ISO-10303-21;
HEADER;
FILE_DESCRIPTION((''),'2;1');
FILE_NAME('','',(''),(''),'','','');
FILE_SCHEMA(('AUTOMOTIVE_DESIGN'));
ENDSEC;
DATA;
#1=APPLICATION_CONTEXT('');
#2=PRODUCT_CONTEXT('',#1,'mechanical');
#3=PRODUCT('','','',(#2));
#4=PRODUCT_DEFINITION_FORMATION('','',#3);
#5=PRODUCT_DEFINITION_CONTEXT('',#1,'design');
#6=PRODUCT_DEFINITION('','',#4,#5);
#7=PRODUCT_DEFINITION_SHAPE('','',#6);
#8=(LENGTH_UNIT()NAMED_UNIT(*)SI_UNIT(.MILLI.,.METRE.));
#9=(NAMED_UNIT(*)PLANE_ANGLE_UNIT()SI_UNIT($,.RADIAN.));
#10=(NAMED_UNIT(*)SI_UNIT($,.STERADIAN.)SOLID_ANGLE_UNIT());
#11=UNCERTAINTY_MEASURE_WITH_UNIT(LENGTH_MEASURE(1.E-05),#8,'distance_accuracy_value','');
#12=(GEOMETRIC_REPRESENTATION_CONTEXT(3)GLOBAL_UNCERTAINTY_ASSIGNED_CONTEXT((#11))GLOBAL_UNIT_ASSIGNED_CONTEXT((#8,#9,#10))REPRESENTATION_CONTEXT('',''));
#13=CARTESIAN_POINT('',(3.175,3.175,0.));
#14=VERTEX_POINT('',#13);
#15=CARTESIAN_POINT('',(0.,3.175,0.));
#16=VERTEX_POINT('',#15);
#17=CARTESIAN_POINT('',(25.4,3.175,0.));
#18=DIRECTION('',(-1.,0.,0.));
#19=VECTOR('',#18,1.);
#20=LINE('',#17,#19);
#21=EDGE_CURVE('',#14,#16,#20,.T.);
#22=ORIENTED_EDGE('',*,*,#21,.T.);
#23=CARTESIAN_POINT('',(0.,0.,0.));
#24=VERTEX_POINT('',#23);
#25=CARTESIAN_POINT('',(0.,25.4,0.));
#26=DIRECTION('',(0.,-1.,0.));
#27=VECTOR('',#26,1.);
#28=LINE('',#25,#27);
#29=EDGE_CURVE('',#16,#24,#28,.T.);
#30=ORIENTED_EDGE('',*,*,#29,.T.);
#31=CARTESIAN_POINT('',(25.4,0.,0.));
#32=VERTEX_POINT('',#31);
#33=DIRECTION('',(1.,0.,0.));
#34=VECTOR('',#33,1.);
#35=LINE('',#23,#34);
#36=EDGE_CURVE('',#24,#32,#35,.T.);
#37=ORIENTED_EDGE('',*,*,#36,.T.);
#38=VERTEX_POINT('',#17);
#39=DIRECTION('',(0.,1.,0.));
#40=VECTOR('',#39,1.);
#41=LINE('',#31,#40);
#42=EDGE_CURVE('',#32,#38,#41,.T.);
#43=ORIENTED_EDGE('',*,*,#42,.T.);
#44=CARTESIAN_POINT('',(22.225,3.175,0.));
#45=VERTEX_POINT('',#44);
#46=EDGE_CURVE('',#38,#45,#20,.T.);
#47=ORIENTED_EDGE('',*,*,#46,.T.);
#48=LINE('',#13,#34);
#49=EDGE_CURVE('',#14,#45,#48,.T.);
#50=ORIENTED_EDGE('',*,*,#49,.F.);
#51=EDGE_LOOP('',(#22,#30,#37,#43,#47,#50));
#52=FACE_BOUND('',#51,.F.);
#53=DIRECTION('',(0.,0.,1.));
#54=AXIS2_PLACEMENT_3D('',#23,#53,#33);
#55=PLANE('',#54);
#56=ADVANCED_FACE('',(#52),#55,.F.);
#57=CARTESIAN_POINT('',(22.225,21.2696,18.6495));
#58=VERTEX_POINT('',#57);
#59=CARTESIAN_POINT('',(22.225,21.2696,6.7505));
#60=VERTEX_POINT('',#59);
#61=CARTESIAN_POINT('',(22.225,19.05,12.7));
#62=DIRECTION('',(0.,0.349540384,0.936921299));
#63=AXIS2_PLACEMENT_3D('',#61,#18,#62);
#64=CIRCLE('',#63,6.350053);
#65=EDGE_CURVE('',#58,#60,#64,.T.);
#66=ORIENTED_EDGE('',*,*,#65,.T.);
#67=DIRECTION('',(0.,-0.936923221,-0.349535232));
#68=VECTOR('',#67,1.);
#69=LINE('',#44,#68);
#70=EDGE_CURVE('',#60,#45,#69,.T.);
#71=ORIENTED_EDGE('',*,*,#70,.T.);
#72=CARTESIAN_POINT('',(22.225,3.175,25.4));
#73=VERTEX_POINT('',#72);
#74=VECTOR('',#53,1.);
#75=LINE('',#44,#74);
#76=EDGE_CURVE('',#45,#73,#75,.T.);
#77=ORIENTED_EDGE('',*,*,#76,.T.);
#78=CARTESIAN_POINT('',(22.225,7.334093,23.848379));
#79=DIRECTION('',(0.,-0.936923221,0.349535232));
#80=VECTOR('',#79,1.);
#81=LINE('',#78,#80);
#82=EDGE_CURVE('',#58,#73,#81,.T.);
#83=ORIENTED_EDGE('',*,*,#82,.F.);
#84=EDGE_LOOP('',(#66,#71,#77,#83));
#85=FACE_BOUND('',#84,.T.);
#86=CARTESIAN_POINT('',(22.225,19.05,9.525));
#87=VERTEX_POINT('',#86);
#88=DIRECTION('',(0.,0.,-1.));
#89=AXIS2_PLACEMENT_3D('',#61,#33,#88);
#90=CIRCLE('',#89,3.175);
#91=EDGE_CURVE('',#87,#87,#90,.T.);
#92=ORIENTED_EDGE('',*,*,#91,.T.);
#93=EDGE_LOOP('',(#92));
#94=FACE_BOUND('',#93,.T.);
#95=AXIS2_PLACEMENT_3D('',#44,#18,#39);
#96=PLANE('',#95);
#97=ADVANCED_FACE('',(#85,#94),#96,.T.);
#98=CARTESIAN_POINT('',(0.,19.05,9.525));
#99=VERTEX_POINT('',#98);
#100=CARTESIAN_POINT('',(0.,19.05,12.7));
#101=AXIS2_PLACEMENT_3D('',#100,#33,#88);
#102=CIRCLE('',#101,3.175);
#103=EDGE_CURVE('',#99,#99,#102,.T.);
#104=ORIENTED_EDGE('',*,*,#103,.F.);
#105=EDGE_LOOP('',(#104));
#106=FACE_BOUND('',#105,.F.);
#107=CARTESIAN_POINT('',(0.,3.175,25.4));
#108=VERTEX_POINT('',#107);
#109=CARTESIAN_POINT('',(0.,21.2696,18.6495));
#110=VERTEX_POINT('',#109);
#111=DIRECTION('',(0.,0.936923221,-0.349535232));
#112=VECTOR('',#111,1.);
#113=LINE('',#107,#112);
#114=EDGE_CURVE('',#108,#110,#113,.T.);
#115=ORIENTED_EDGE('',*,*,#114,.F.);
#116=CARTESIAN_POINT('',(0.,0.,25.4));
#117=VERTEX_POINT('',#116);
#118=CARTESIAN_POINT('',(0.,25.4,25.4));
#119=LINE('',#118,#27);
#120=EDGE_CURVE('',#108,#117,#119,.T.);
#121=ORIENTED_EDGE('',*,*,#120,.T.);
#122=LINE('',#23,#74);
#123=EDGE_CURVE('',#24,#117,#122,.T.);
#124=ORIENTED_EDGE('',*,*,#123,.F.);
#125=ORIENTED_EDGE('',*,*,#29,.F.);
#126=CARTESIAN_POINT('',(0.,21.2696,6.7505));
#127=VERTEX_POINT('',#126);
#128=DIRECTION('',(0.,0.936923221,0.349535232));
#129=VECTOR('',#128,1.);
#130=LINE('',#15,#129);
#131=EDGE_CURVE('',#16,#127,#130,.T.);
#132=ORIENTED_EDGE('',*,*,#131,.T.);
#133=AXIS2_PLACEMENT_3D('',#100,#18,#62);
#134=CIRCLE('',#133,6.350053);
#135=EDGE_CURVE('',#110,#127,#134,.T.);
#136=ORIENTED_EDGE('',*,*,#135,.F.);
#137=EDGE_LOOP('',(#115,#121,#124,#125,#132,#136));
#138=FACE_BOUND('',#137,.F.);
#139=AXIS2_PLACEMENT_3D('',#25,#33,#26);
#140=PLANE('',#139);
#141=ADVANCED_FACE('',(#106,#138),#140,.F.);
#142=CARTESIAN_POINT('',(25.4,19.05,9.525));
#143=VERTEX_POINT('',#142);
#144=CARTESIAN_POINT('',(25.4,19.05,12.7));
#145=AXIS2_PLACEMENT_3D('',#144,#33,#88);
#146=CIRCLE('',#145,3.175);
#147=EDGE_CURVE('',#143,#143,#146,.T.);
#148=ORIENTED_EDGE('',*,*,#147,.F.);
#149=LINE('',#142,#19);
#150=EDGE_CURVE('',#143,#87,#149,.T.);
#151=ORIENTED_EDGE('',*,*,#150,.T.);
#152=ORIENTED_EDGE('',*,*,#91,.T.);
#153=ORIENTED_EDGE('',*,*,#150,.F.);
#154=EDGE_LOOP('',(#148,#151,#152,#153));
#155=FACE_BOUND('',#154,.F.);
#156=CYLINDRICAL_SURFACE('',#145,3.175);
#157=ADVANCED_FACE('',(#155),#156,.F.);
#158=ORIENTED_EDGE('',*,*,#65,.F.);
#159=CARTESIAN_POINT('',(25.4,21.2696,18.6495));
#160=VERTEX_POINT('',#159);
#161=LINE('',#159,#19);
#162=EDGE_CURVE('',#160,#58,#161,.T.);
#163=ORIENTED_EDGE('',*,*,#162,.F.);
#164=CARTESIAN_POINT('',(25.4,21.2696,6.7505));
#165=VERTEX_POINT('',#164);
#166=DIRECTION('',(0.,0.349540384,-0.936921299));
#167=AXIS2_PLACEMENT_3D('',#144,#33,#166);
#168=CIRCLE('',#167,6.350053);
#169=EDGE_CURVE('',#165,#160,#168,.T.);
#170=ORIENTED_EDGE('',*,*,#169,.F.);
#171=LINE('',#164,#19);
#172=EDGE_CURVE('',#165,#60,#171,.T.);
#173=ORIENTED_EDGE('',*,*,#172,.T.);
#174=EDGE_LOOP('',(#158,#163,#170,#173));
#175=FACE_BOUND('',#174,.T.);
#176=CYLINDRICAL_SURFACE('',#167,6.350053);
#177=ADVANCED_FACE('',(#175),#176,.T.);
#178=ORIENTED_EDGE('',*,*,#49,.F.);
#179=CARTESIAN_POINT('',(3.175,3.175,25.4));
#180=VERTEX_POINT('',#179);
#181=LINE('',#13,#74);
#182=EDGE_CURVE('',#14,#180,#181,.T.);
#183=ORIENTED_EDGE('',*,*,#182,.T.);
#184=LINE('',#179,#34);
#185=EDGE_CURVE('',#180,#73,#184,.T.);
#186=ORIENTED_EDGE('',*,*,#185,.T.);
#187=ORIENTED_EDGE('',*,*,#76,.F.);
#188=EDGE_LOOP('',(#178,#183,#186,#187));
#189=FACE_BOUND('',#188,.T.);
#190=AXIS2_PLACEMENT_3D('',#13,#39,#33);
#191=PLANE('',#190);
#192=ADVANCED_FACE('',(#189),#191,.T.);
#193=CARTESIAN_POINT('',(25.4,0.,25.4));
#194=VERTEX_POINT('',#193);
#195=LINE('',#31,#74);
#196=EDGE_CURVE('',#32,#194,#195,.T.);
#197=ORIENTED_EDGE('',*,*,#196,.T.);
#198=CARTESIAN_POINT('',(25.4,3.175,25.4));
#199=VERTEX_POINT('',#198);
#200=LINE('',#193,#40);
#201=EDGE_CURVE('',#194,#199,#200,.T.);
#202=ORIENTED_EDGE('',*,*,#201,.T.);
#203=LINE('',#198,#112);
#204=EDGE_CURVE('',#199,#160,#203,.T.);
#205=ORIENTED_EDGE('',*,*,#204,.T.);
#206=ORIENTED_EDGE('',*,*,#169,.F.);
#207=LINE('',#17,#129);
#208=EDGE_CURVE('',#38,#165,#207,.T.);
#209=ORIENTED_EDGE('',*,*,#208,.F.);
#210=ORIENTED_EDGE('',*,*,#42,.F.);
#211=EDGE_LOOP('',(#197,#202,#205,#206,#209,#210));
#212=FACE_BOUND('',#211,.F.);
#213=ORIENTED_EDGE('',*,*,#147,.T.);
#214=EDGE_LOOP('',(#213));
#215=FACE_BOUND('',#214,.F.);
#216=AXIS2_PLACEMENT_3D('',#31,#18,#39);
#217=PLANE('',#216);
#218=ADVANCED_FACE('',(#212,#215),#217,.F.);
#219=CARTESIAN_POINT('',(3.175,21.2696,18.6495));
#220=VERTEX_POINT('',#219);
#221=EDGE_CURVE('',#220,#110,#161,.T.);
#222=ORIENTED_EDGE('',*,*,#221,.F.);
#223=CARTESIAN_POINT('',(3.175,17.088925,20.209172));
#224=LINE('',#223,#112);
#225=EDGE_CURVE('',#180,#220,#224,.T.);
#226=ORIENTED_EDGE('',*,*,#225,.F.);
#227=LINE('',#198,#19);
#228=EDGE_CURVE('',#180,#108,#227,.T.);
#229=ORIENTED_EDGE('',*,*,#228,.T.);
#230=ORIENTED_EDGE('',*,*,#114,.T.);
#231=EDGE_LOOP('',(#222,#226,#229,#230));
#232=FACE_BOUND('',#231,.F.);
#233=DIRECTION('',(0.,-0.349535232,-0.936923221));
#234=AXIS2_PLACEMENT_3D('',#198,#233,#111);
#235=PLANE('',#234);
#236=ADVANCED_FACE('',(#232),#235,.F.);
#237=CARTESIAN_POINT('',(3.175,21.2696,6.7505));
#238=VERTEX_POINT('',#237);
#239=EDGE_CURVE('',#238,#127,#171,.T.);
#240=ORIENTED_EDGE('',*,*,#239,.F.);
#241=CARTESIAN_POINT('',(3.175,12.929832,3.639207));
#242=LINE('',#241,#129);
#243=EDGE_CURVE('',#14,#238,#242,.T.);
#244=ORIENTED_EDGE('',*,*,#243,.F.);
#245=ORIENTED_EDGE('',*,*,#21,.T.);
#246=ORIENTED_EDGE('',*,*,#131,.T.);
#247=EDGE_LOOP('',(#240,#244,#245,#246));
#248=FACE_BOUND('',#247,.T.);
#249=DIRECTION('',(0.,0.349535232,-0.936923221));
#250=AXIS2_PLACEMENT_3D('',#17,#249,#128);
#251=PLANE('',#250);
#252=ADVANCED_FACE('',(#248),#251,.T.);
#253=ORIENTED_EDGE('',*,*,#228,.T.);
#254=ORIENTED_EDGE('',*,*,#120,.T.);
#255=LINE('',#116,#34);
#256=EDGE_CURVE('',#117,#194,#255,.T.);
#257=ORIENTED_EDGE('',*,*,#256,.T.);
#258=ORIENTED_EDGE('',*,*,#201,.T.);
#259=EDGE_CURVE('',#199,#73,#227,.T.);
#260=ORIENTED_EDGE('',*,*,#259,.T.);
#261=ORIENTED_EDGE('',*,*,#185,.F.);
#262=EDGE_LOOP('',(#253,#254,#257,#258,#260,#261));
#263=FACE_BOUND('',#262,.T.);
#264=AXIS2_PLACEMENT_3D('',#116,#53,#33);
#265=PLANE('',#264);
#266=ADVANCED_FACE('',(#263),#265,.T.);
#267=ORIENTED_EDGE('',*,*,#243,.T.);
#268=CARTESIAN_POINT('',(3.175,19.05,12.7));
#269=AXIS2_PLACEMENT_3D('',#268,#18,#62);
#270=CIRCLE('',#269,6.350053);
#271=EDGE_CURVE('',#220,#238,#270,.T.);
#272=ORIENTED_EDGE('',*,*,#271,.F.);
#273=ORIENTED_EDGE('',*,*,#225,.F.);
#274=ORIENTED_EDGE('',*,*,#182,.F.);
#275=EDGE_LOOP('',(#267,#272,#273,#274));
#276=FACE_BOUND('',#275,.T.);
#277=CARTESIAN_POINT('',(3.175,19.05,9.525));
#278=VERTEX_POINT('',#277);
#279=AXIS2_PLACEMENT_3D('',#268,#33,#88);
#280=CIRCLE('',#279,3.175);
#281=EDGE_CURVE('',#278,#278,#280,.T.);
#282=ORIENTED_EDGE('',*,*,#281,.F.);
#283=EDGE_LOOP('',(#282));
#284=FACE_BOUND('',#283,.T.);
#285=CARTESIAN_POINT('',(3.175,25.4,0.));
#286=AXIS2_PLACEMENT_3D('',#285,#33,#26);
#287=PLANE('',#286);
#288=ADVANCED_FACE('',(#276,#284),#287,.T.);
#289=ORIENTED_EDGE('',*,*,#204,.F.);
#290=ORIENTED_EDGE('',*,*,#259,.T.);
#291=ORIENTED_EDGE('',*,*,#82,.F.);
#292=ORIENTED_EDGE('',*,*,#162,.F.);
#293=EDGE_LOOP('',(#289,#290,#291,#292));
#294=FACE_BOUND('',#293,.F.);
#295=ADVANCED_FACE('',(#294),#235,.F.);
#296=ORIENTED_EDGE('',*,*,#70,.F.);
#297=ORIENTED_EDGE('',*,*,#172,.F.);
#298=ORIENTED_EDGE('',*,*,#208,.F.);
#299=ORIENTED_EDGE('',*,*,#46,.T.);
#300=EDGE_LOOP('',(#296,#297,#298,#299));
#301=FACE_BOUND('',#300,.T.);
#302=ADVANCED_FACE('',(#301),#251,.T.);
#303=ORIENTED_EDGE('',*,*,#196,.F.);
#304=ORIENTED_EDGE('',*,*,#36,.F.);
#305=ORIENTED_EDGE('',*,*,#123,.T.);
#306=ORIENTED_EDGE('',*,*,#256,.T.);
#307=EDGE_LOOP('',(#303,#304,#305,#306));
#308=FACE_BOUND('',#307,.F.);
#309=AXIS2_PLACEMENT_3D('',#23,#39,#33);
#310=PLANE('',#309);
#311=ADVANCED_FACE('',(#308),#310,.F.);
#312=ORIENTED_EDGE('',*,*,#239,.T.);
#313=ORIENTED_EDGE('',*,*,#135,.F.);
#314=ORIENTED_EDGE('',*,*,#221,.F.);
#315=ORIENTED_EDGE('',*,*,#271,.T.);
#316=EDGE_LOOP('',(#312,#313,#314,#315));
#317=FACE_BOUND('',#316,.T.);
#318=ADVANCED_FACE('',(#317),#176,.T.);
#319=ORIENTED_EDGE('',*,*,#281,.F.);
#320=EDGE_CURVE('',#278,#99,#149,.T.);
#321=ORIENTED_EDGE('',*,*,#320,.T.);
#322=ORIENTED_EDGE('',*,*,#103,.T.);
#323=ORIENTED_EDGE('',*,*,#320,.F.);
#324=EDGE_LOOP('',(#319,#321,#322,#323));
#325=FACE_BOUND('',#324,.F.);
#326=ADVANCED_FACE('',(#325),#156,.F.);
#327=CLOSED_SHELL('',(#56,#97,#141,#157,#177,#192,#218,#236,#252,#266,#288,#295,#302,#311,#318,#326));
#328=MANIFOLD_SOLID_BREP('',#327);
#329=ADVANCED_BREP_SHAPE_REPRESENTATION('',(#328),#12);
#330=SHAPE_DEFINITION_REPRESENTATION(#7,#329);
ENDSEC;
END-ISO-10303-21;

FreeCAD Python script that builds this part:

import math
import FreeCAD as App
import Part
import Sketcher
from FreeCAD import Vector
Q = App.Units.Quantity


def add_polygon(sketch, points):
    """Adds a closed chain of lines whose ends are joined by coincident constraints."""
    first, n = sketch.GeometryCount, len(points)
    for a, b in zip(points, points[1:] + points[:1]):
        sketch.addGeometry(Part.LineSegment(App.Vector(*a, 0), App.Vector(*b, 0)), False)
    for i in range(n):
        sketch.addConstraint(Sketcher.Constraint("Coincident", first + i, 2, first + (i + 1) % n, 1))

doc = App.newDocument("Part")
params = doc.addObject("Spreadsheet::Sheet", "Params")
for row, (alias, value) in enumerate([
    ("sketch1_width", "1 in"),
    ("sketch1_width2", "0.125 in"),
    ("pad1_length", "1 in"),
    ("sketch2_diameter", "0.25 in"),
    ("sketch2_radius", "0.25 in"),
    ("sketch2_height", "0.5 in"),
    ("pocket1_length", "1 in"),
], start=1):
    params.set(f"A{row}", alias)
    params.set(f"B{row}", "=" + value)
    params.setAlias(f"B{row}", alias)

body = doc.addObject("PartDesign::Body", "Body")

# Sketch on XY plane
sketch1 = body.newObject("Sketcher::SketchObject", "Sketch")
sketch1.AttachmentSupport = (doc.getObject("XY_Plane"), [""])
sketch1.MapMode = "FlatFace"
add_polygon(sketch1, [(0, 25.4), (0, 0), (25.4, 0), (25.4, 25.4), (22.225, 25.4), (22.225, 3.175), (3.175, 3.175), (3.175, 25.4)])  # lines 0-7
sketch1.addConstraint([
    Sketcher.Constraint("Vertical", 0),
    Sketcher.Constraint("Horizontal", 1),
    Sketcher.Constraint("Vertical", 2),
    Sketcher.Constraint("Horizontal", 3),
    Sketcher.Constraint("Vertical", 4),
    Sketcher.Constraint("Horizontal", 5),
    Sketcher.Constraint("Vertical", 6),
    Sketcher.Constraint("Horizontal", 7),
    Sketcher.Constraint("Coincident", 0, 2, -1, 1),
    Sketcher.Constraint("Horizontal", 3, 2, 6, 2),
    Sketcher.Constraint("Equal", 3, 7),
    Sketcher.Constraint("Equal", 1, 0),
    Sketcher.Constraint("DistanceX", 1, 1, 1, 2, Q("1 in")),
    Sketcher.Constraint("DistanceX", 3, 2, 3, 1, Q("0.125 in")),
    Sketcher.Constraint("DistanceY", -1, 1, 4, 2, Q("0.125 in")),
])
sketch1.setExpression("Constraints[20]", "Params.sketch1_width")
sketch1.setExpression("Constraints[21]", "Params.sketch1_width2")
pad1 = body.newObject("PartDesign::Pad", "Pad")
pad1.Profile = sketch1
pad1.setExpression("Length", "Params.pad1_length")

# Sketch on YZ plane
sketch2 = body.newObject("Sketcher::SketchObject", "Sketch001")
sketch2.AttachmentSupport = (doc.getObject("YZ_Plane"), [""])
sketch2.MapMode = "FlatFace"
sketch2.AttachmentOffset = App.Placement(Vector(0, 0, 1 * 25.4), App.Rotation())
sketch2.addGeometry([
    Part.LineSegment(Vector(25.4, 12.7, 0), Vector(25.4, 25.4, 0)),  # 0
    Part.LineSegment(Vector(25.4, 25.4, 0), Vector(3.175, 25.4, 0)),  # 1
    Part.LineSegment(Vector(3.175, 25.4, 0), Vector(21.2696, 18.6495, 0)),  # 2
    Part.ArcOfCircle(Part.Circle(Vector(19.05, 12.7, 0), Vector(0, 0, 1), 6.350053), math.radians(0), math.radians(69.540794)),  # 3
    Part.LineSegment(Vector(25.4, 0, 0), Vector(25.4, 12.7, 0)),  # 4
    Part.ArcOfCircle(Part.Circle(Vector(19.05, 12.7, 0), Vector(0, 0, 1), 6.350053), math.radians(-69.540794), math.radians(0)),  # 5
    Part.LineSegment(Vector(21.2696, 6.7505, 0), Vector(3.175, 0, 0)),  # 6
    Part.LineSegment(Vector(3.175, 0, 0), Vector(25.4, 0, 0)),  # 7
    Part.Circle(Vector(19.05, 12.7, 0), Vector(0, 0, 1), 3.175),  # 8
], False)
sketch2.addConstraint([
    Sketcher.Constraint("Coincident", 0, 2, 1, 1),
    Sketcher.Constraint("Coincident", 1, 2, 2, 1),
    Sketcher.Constraint("Tangent", 2, 2, 3, 2),
    Sketcher.Constraint("Tangent", 3, 1, 0, 1),
    Sketcher.Constraint("Tangent", 4, 2, 5, 2),
    Sketcher.Constraint("Tangent", 5, 1, 6, 1),
    Sketcher.Constraint("Coincident", 6, 2, 7, 1),
    Sketcher.Constraint("Coincident", 7, 2, 4, 1),
    Sketcher.Constraint("Vertical", 0),
    Sketcher.Constraint("Horizontal", 1),
    Sketcher.Constraint("Vertical", 4),
    Sketcher.Constraint("Horizontal", 7),
    Sketcher.Constraint("Coincident", 5, 3, 3, 3),
    Sketcher.Constraint("Coincident", 8, 3, 3, 3),
    Sketcher.Constraint("Equal", 3, 5),
    Sketcher.Constraint("PointOnObject", 6, 2, -1),
    Sketcher.Constraint("Vertical", 2, 2, 5, 1),
    Sketcher.Constraint("Vertical", 1, 2, 6, 2),
    Sketcher.Constraint("Diameter", 8, Q("0.25 in")),
    Sketcher.Constraint("Radius", 3, Q("0.25 in")),
    Sketcher.Constraint("DistanceY", 0, 1, 0, 2, Q("0.5 in")),
    Sketcher.Constraint("DistanceX", -1, 1, 3, 3, Q("0.75 in")),
    Sketcher.Constraint("DistanceX", -1, 1, 1, 2, Q("0.125 in")),
])
sketch2.setExpression("Constraints[18]", "Params.sketch2_diameter")
sketch2.setExpression("Constraints[19]", "Params.sketch2_radius")
sketch2.setExpression("Constraints[20]", "Params.sketch2_height")
pocket1 = body.newObject("PartDesign::Pocket", "Pocket")
pocket1.Profile = sketch2
pocket1.setExpression("Length", "Params.pocket1_length")

doc.recompute()
